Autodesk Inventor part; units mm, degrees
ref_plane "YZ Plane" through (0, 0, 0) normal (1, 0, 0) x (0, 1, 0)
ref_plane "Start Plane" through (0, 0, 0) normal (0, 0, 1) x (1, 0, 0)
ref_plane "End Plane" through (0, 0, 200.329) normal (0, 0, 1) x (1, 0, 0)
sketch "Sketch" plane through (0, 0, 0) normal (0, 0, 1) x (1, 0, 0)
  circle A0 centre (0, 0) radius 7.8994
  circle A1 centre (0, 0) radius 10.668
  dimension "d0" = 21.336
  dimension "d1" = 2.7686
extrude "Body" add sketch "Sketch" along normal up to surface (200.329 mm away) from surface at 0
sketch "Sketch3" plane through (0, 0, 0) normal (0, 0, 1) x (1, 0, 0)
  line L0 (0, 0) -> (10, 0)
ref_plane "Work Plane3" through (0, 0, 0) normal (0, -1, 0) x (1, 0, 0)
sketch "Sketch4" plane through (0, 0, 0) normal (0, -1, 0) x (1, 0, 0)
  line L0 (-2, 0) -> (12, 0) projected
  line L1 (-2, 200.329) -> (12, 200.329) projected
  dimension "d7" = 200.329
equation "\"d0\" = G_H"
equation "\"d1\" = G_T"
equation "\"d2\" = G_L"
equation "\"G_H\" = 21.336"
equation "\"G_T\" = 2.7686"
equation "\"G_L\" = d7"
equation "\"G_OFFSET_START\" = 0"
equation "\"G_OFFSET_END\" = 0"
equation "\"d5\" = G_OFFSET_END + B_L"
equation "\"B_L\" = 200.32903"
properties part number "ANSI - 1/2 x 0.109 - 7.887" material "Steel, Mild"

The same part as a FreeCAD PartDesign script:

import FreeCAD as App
import Part
import Sketcher

V = App.Vector
Q = App.Units.Quantity

doc = App.newDocument("Part")
body = doc.addObject("PartDesign::Body", "Body")

# Sketch on XY plane
sketch1 = doc.addObject("Sketcher::SketchObject", "Sketch")
body.addObject(sketch1)
sketch1.AttachmentSupport = (doc.XY_Plane, [""])
sketch1.MapMode = "FlatFace"
sketch1.addGeometry([
    Part.Circle(V(0, 0, 0), V(0, 0, 1), 11),
    Part.Circle(V(0, 0, 0), V(0, 0, 1), 8),
], False)
sketch1.addConstraint([
    Sketcher.Constraint("Coincident", 0, 3, -1, 1),
    Sketcher.Constraint("Coincident", 1, 3, -1, 1),
    Sketcher.Constraint("Diameter", 0, Q("0.84 in")),
    Sketcher.Constraint("Diameter", 1, Q("0.622 in")),
])
pad1 = doc.addObject("PartDesign::Pad", "Pad")
body.addObject(pad1)
pad1.Profile = sketch1
pad1.Length = 200.329

doc.recompute()
